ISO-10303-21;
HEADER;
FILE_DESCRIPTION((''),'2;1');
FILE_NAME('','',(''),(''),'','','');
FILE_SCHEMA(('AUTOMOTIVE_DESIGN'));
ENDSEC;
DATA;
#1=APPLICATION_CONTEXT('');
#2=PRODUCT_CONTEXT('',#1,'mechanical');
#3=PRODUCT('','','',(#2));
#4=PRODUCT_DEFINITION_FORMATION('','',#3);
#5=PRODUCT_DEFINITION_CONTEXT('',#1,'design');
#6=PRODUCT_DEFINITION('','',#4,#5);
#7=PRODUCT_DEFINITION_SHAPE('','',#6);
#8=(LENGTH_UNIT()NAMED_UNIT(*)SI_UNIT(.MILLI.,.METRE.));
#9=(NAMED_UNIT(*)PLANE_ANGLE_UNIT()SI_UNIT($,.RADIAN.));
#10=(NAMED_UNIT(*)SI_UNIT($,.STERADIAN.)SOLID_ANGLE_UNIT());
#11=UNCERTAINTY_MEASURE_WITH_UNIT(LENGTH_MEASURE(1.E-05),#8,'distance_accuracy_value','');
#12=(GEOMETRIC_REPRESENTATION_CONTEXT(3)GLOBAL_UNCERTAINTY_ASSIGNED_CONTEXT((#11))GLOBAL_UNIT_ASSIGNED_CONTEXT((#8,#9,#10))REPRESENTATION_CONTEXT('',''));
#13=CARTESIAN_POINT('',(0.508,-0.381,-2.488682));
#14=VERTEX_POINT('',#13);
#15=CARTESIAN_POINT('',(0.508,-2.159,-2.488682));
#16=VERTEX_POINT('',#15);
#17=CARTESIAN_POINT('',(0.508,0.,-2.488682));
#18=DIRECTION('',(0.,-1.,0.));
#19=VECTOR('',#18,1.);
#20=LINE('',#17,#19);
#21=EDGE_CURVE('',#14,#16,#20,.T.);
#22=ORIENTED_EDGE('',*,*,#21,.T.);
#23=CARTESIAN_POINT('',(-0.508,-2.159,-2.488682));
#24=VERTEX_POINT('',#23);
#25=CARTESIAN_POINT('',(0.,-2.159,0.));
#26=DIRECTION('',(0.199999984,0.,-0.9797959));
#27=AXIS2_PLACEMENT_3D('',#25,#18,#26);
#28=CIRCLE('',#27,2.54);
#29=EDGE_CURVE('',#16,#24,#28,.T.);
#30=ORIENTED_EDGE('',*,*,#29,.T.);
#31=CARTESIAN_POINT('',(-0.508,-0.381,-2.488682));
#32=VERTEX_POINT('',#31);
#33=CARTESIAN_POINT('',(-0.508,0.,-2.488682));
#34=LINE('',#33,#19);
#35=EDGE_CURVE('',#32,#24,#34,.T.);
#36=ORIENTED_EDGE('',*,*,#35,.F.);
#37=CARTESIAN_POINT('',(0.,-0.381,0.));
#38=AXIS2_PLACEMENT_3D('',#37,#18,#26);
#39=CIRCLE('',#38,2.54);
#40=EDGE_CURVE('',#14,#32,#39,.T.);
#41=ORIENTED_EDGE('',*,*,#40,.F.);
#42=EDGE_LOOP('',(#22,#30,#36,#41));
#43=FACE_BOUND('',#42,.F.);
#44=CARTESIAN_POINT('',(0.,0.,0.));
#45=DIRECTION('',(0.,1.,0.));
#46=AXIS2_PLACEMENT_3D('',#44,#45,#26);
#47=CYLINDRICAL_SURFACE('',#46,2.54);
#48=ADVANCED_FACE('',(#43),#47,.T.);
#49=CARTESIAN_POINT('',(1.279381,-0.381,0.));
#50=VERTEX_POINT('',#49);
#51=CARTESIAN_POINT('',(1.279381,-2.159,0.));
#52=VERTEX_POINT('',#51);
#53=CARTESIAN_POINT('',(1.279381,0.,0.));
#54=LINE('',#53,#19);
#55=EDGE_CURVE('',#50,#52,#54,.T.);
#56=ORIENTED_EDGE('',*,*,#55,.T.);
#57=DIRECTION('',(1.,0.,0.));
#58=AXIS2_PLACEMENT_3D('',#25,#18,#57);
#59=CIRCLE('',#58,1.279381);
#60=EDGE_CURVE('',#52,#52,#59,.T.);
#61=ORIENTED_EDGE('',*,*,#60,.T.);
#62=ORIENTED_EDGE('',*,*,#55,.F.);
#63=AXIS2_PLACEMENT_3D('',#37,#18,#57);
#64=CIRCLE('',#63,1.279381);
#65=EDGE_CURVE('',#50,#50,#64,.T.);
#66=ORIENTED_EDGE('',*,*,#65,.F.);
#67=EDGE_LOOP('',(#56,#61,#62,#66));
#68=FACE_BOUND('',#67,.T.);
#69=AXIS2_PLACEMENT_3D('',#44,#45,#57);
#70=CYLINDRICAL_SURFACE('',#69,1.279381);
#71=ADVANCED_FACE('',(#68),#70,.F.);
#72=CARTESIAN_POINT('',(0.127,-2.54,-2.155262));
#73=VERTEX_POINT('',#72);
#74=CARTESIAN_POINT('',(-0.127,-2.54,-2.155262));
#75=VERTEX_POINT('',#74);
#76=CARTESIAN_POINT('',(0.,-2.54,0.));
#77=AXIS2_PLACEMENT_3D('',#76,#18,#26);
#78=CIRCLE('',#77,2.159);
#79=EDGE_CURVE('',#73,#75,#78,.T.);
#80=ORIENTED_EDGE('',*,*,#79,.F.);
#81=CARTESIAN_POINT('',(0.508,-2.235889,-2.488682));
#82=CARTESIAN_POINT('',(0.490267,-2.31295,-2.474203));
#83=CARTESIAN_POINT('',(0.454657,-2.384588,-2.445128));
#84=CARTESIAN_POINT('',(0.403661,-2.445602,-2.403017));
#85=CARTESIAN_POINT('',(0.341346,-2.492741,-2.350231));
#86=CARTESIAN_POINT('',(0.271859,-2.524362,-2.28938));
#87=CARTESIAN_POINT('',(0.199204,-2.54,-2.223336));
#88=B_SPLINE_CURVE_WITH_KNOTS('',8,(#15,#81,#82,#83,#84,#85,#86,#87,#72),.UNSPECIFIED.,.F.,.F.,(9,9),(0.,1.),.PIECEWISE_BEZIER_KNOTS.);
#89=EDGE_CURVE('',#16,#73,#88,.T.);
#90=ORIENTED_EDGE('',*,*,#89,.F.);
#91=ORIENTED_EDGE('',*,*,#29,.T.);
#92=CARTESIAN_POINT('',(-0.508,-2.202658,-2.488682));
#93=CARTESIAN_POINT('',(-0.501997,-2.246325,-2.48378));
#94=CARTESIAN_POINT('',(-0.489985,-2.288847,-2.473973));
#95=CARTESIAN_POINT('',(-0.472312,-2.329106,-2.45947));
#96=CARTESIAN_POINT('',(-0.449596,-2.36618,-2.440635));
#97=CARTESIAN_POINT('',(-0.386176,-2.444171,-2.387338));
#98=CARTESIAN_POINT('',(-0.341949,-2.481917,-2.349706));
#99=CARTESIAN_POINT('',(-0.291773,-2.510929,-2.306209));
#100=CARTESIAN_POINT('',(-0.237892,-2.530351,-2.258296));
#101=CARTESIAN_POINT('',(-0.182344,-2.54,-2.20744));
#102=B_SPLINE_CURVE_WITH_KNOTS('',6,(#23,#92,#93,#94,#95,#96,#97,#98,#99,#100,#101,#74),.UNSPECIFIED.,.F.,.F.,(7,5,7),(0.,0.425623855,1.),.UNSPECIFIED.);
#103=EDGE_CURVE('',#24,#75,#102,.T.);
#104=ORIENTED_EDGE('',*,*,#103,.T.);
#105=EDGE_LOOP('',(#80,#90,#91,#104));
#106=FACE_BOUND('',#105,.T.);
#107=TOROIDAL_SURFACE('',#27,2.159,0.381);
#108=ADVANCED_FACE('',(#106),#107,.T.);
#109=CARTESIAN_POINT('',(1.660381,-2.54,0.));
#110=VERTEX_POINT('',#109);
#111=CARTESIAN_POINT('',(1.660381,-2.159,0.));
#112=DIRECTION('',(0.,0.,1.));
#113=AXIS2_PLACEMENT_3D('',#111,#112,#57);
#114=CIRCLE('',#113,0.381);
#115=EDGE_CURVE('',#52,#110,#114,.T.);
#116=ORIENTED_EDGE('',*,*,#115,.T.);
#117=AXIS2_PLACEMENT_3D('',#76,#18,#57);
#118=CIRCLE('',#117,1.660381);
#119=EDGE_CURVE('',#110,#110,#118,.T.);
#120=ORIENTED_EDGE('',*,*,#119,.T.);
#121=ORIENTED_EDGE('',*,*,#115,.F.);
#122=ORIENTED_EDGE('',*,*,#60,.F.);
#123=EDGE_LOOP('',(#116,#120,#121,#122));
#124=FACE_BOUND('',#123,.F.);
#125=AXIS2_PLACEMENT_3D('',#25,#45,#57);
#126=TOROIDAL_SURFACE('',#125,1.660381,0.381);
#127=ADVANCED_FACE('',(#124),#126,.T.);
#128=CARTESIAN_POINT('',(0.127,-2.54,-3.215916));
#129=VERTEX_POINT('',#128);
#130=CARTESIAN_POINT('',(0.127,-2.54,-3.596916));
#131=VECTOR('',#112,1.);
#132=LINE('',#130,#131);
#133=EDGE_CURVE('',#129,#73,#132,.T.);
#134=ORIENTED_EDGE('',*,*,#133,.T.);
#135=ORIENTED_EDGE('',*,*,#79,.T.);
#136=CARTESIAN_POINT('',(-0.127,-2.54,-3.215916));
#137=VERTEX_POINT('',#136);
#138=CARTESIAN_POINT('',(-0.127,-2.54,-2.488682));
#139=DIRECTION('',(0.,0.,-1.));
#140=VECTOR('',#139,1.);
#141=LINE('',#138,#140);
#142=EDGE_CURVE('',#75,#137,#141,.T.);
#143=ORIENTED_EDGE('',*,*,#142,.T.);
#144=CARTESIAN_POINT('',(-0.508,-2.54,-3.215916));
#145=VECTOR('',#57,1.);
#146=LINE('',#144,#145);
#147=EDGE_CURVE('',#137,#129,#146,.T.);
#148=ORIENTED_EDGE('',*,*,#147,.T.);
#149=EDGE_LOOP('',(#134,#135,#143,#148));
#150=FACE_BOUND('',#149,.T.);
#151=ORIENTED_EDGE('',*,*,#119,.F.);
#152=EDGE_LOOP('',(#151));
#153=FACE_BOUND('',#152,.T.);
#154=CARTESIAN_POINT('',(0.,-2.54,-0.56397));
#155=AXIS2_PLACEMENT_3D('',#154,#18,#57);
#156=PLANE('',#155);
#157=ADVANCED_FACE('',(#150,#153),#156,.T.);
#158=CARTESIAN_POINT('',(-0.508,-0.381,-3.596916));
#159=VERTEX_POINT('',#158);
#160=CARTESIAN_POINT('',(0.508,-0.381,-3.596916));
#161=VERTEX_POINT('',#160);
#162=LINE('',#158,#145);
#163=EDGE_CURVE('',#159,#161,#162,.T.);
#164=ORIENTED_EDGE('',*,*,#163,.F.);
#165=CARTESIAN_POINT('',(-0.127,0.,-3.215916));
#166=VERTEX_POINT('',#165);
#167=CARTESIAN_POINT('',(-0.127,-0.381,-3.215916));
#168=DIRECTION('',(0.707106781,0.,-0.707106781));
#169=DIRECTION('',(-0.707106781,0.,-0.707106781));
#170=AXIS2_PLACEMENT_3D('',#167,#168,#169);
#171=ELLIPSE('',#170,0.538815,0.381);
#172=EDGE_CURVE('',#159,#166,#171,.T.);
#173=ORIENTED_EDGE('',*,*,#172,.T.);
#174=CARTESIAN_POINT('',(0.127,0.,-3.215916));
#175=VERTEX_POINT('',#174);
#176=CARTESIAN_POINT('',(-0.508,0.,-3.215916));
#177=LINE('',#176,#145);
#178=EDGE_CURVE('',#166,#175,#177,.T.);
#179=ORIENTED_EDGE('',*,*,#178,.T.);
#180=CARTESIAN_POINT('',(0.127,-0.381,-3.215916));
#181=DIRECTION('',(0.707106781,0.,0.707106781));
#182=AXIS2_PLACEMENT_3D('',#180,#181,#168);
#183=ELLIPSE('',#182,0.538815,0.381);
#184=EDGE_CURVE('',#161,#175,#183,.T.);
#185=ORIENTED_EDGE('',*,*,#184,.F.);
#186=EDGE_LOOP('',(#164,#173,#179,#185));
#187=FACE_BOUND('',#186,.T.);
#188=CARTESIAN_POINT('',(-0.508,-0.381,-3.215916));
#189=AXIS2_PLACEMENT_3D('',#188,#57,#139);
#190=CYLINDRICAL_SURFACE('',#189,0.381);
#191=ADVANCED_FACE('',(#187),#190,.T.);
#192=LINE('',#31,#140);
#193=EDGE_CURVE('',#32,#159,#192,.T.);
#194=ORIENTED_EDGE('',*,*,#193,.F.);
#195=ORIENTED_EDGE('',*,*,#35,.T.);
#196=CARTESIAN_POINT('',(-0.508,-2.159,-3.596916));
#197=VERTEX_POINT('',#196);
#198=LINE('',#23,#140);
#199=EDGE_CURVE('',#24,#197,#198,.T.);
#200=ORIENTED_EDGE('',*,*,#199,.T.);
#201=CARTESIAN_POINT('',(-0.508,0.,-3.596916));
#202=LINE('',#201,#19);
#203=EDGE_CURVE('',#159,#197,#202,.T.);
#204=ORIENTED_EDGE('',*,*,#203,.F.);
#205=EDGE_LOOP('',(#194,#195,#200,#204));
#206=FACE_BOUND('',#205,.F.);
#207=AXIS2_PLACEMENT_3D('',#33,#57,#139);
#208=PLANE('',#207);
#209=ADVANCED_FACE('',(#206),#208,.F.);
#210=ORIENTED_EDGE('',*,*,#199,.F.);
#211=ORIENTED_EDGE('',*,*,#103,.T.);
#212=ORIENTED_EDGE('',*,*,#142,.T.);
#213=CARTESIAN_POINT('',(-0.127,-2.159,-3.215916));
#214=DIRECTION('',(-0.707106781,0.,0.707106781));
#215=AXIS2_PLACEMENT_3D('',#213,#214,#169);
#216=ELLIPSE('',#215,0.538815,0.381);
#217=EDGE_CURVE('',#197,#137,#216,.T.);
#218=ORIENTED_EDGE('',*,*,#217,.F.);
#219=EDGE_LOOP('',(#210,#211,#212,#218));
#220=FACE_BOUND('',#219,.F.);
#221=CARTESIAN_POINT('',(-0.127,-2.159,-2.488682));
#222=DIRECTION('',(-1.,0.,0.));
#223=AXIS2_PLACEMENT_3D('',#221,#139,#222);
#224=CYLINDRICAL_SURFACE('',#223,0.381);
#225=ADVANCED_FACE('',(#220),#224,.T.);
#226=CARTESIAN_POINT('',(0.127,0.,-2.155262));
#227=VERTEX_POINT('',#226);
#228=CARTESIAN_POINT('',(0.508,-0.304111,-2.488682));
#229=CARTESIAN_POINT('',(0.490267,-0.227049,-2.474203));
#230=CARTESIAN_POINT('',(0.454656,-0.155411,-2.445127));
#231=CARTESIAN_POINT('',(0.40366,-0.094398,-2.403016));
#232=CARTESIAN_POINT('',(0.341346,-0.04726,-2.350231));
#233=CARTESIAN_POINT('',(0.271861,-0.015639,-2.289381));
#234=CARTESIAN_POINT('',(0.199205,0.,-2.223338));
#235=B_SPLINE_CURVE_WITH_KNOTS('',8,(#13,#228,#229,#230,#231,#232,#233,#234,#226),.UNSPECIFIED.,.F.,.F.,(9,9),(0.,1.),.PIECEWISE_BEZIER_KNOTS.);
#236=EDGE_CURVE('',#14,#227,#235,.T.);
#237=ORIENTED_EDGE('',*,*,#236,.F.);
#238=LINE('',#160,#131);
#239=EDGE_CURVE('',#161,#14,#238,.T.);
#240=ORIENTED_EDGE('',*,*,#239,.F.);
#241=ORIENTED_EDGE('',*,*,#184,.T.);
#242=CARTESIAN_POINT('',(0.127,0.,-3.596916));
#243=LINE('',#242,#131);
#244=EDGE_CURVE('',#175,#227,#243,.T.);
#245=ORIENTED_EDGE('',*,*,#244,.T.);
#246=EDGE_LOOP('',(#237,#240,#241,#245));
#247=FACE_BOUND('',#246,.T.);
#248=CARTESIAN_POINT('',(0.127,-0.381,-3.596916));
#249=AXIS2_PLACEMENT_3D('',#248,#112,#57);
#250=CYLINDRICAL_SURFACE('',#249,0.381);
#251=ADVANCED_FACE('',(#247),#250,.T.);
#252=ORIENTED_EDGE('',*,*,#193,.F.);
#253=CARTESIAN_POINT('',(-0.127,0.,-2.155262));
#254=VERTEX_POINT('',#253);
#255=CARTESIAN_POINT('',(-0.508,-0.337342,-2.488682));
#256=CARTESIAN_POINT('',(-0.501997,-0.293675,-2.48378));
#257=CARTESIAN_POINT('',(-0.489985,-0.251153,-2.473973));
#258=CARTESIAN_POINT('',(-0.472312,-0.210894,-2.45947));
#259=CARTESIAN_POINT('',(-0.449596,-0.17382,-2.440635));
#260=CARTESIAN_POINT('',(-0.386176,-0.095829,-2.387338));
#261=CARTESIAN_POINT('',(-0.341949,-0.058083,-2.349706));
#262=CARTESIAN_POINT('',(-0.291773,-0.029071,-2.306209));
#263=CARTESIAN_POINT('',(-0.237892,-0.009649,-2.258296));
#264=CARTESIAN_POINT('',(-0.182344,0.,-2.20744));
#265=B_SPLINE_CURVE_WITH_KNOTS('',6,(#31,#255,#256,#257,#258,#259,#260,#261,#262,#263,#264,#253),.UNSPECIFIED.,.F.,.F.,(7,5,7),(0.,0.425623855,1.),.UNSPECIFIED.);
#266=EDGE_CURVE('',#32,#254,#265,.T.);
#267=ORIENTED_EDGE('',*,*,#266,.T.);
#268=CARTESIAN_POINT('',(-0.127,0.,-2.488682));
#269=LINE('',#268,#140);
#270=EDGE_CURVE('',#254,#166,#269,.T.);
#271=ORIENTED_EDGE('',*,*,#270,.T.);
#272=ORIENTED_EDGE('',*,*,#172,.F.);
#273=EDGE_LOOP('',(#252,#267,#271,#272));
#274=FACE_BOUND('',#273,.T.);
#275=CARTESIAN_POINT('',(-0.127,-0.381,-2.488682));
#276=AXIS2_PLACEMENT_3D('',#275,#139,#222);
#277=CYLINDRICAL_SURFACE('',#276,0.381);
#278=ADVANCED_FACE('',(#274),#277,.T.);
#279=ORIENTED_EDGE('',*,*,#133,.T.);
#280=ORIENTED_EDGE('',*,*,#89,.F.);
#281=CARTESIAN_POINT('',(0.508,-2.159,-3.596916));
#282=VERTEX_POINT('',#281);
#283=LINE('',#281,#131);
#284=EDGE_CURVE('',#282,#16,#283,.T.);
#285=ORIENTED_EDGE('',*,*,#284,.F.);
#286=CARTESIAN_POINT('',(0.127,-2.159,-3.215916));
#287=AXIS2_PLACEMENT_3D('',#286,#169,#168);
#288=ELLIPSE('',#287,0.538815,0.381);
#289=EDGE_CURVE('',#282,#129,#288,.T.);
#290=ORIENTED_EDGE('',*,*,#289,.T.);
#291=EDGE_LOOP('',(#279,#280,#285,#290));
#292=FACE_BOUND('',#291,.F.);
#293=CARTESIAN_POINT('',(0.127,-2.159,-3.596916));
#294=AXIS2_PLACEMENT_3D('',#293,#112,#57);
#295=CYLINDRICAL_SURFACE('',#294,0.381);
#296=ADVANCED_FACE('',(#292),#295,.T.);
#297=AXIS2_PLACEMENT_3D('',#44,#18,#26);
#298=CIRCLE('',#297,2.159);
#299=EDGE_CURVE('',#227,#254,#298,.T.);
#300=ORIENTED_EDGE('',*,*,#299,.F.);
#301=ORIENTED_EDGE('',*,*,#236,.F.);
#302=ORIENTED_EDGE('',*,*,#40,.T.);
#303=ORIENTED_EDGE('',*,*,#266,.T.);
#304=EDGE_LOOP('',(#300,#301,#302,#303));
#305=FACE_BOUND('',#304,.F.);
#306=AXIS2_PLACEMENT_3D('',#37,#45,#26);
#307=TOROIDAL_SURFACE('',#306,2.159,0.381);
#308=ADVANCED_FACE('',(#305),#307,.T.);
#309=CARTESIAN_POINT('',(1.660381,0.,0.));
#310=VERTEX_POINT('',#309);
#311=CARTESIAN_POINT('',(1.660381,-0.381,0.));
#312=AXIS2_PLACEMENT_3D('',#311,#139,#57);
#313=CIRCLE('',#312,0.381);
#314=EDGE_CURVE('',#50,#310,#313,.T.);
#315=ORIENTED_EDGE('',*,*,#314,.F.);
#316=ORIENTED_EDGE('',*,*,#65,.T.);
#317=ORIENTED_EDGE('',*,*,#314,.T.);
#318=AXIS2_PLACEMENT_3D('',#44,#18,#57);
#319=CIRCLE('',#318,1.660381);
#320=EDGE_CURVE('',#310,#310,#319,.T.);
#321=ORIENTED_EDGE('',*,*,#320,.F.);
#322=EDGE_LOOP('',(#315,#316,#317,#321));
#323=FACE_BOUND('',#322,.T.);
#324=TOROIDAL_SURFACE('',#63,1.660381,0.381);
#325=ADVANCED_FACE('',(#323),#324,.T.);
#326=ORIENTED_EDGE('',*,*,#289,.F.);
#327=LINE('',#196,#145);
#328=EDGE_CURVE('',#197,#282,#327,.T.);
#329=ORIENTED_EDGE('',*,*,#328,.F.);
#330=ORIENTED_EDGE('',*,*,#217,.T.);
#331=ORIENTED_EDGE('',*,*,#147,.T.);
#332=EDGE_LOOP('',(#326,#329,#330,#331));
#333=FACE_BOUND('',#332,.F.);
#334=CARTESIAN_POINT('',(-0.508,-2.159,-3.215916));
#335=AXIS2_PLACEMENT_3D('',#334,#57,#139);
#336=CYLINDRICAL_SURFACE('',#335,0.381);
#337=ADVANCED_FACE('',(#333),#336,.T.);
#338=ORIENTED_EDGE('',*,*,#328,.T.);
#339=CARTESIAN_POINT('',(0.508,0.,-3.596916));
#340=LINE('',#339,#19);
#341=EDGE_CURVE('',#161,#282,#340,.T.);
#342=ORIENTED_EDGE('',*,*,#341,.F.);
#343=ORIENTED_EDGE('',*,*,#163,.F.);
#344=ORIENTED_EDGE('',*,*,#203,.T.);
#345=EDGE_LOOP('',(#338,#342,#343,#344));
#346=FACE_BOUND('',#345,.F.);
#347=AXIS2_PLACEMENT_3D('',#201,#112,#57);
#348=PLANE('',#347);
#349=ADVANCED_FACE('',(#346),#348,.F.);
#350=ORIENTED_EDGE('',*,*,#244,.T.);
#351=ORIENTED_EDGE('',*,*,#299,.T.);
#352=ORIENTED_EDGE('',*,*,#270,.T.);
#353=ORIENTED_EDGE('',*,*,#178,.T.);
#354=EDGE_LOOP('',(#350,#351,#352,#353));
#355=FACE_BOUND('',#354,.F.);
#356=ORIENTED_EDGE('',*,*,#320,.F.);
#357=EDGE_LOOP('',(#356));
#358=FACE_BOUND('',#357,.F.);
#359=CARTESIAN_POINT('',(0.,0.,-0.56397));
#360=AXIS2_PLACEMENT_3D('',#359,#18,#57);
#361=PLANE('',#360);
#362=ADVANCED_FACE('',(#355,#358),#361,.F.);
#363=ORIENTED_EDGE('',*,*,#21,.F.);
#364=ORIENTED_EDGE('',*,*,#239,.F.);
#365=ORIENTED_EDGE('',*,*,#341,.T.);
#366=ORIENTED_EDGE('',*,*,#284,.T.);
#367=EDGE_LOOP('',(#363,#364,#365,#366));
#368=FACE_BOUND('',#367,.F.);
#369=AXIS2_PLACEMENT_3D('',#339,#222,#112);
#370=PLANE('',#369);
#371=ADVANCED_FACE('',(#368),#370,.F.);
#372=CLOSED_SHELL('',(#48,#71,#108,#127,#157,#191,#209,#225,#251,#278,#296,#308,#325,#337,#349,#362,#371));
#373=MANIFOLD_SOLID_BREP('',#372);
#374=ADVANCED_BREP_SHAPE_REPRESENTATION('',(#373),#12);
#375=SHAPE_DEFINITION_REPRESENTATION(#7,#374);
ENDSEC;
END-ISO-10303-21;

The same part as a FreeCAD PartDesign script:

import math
import FreeCAD as App
import Part
import Sketcher
from FreeCAD import Vector
Q = App.Units.Quantity


def edges_at(feature, points):
    """Names of the edges that pass closest to the given points."""
    edges = feature.Shape.Edges
    near = lambda p: min(range(len(edges)), key=lambda i: edges[i].distToShape(Part.Vertex(*p))[0])
    return sorted({f"Edge{near(p) + 1}" for p in points})

doc = App.newDocument("Part")
body = doc.addObject("PartDesign::Body", "Body")

sketch1 = doc.addObject("Sketcher::SketchObject", "Sketch")
body.addObject(sketch1)
sketch1.AttachmentSupport = (doc.XZ_Plane, [""])
sketch1.MapMode = "FlatFace"
sketch1.addGeometry([
    Part.LineSegment(Vector(0.5, -3.6, 0), Vector(0.5, -2.5, 0)),
    Part.ArcOfCircle(Part.Circle(Vector(0, 0, 0), Vector(0, 0, 1), 2.5), math.radians(-78), math.radians(258)),
    Part.LineSegment(Vector(-0.5, -2.5, 0), Vector(-0.5, -3.6, 0)),
    Part.LineSegment(Vector(-0.5, -3.6, 0), Vector(0.5, -3.6, 0)),
    Part.Circle(Vector(0, 0, 0), Vector(0, 0, 1), 1.3),
], False)
sketch1.addConstraint([
    Sketcher.Constraint("Coincident", 0, 2, 1, 1),
    Sketcher.Constraint("Coincident", 1, 2, 2, 1),
    Sketcher.Constraint("Coincident", 2, 2, 3, 1),
    Sketcher.Constraint("Coincident", 3, 2, 0, 1),
    Sketcher.Constraint("Vertical", 0),
    Sketcher.Constraint("Vertical", 2),
    Sketcher.Constraint("Horizontal", 3),
    Sketcher.Constraint("Coincident", 1, 3, -1, 1),
    Sketcher.Constraint("Coincident", 4, 3, -1, 1),
    Sketcher.Constraint("Horizontal", 0, 2, 1, 2),
    Sketcher.Constraint("Radius", 1, Q("0.1 in")),
    Sketcher.Constraint("DistanceX", 3, 1, 3, 2, Q("0.04 in")),
    Sketcher.Constraint("Diameter", 4, 2.558762),
    Sketcher.Constraint("DistanceY", 0, 1, 0, 2, 1.108234),
])
pad1 = doc.addObject("PartDesign::Pad", "Pad")
body.addObject(pad1)
pad1.Profile = sketch1
pad1.Length = Q("0.1 in")
doc.recompute()

fillet = doc.addObject("PartDesign::Fillet", "Fillet")
body.addObject(fillet)
fillet.Base = (pad1, edges_at(pad1, [
    (-0.508, -2.54, -3.043),
    (0, -2.54, -3.597),
    (0.508, -2.54, -3.043),
    (0, -2.54, 2.54),
    (-1.279, -2.54, 0),
    (-0.508, 0, -3.043),
    (0, 0, -3.597),
    (0.508, 0, -3.043),
    (0, 0, 2.54),
    (-1.279, 0, 0),
]))
fillet.Radius = Q("0.015 in")

doc.recompute()
